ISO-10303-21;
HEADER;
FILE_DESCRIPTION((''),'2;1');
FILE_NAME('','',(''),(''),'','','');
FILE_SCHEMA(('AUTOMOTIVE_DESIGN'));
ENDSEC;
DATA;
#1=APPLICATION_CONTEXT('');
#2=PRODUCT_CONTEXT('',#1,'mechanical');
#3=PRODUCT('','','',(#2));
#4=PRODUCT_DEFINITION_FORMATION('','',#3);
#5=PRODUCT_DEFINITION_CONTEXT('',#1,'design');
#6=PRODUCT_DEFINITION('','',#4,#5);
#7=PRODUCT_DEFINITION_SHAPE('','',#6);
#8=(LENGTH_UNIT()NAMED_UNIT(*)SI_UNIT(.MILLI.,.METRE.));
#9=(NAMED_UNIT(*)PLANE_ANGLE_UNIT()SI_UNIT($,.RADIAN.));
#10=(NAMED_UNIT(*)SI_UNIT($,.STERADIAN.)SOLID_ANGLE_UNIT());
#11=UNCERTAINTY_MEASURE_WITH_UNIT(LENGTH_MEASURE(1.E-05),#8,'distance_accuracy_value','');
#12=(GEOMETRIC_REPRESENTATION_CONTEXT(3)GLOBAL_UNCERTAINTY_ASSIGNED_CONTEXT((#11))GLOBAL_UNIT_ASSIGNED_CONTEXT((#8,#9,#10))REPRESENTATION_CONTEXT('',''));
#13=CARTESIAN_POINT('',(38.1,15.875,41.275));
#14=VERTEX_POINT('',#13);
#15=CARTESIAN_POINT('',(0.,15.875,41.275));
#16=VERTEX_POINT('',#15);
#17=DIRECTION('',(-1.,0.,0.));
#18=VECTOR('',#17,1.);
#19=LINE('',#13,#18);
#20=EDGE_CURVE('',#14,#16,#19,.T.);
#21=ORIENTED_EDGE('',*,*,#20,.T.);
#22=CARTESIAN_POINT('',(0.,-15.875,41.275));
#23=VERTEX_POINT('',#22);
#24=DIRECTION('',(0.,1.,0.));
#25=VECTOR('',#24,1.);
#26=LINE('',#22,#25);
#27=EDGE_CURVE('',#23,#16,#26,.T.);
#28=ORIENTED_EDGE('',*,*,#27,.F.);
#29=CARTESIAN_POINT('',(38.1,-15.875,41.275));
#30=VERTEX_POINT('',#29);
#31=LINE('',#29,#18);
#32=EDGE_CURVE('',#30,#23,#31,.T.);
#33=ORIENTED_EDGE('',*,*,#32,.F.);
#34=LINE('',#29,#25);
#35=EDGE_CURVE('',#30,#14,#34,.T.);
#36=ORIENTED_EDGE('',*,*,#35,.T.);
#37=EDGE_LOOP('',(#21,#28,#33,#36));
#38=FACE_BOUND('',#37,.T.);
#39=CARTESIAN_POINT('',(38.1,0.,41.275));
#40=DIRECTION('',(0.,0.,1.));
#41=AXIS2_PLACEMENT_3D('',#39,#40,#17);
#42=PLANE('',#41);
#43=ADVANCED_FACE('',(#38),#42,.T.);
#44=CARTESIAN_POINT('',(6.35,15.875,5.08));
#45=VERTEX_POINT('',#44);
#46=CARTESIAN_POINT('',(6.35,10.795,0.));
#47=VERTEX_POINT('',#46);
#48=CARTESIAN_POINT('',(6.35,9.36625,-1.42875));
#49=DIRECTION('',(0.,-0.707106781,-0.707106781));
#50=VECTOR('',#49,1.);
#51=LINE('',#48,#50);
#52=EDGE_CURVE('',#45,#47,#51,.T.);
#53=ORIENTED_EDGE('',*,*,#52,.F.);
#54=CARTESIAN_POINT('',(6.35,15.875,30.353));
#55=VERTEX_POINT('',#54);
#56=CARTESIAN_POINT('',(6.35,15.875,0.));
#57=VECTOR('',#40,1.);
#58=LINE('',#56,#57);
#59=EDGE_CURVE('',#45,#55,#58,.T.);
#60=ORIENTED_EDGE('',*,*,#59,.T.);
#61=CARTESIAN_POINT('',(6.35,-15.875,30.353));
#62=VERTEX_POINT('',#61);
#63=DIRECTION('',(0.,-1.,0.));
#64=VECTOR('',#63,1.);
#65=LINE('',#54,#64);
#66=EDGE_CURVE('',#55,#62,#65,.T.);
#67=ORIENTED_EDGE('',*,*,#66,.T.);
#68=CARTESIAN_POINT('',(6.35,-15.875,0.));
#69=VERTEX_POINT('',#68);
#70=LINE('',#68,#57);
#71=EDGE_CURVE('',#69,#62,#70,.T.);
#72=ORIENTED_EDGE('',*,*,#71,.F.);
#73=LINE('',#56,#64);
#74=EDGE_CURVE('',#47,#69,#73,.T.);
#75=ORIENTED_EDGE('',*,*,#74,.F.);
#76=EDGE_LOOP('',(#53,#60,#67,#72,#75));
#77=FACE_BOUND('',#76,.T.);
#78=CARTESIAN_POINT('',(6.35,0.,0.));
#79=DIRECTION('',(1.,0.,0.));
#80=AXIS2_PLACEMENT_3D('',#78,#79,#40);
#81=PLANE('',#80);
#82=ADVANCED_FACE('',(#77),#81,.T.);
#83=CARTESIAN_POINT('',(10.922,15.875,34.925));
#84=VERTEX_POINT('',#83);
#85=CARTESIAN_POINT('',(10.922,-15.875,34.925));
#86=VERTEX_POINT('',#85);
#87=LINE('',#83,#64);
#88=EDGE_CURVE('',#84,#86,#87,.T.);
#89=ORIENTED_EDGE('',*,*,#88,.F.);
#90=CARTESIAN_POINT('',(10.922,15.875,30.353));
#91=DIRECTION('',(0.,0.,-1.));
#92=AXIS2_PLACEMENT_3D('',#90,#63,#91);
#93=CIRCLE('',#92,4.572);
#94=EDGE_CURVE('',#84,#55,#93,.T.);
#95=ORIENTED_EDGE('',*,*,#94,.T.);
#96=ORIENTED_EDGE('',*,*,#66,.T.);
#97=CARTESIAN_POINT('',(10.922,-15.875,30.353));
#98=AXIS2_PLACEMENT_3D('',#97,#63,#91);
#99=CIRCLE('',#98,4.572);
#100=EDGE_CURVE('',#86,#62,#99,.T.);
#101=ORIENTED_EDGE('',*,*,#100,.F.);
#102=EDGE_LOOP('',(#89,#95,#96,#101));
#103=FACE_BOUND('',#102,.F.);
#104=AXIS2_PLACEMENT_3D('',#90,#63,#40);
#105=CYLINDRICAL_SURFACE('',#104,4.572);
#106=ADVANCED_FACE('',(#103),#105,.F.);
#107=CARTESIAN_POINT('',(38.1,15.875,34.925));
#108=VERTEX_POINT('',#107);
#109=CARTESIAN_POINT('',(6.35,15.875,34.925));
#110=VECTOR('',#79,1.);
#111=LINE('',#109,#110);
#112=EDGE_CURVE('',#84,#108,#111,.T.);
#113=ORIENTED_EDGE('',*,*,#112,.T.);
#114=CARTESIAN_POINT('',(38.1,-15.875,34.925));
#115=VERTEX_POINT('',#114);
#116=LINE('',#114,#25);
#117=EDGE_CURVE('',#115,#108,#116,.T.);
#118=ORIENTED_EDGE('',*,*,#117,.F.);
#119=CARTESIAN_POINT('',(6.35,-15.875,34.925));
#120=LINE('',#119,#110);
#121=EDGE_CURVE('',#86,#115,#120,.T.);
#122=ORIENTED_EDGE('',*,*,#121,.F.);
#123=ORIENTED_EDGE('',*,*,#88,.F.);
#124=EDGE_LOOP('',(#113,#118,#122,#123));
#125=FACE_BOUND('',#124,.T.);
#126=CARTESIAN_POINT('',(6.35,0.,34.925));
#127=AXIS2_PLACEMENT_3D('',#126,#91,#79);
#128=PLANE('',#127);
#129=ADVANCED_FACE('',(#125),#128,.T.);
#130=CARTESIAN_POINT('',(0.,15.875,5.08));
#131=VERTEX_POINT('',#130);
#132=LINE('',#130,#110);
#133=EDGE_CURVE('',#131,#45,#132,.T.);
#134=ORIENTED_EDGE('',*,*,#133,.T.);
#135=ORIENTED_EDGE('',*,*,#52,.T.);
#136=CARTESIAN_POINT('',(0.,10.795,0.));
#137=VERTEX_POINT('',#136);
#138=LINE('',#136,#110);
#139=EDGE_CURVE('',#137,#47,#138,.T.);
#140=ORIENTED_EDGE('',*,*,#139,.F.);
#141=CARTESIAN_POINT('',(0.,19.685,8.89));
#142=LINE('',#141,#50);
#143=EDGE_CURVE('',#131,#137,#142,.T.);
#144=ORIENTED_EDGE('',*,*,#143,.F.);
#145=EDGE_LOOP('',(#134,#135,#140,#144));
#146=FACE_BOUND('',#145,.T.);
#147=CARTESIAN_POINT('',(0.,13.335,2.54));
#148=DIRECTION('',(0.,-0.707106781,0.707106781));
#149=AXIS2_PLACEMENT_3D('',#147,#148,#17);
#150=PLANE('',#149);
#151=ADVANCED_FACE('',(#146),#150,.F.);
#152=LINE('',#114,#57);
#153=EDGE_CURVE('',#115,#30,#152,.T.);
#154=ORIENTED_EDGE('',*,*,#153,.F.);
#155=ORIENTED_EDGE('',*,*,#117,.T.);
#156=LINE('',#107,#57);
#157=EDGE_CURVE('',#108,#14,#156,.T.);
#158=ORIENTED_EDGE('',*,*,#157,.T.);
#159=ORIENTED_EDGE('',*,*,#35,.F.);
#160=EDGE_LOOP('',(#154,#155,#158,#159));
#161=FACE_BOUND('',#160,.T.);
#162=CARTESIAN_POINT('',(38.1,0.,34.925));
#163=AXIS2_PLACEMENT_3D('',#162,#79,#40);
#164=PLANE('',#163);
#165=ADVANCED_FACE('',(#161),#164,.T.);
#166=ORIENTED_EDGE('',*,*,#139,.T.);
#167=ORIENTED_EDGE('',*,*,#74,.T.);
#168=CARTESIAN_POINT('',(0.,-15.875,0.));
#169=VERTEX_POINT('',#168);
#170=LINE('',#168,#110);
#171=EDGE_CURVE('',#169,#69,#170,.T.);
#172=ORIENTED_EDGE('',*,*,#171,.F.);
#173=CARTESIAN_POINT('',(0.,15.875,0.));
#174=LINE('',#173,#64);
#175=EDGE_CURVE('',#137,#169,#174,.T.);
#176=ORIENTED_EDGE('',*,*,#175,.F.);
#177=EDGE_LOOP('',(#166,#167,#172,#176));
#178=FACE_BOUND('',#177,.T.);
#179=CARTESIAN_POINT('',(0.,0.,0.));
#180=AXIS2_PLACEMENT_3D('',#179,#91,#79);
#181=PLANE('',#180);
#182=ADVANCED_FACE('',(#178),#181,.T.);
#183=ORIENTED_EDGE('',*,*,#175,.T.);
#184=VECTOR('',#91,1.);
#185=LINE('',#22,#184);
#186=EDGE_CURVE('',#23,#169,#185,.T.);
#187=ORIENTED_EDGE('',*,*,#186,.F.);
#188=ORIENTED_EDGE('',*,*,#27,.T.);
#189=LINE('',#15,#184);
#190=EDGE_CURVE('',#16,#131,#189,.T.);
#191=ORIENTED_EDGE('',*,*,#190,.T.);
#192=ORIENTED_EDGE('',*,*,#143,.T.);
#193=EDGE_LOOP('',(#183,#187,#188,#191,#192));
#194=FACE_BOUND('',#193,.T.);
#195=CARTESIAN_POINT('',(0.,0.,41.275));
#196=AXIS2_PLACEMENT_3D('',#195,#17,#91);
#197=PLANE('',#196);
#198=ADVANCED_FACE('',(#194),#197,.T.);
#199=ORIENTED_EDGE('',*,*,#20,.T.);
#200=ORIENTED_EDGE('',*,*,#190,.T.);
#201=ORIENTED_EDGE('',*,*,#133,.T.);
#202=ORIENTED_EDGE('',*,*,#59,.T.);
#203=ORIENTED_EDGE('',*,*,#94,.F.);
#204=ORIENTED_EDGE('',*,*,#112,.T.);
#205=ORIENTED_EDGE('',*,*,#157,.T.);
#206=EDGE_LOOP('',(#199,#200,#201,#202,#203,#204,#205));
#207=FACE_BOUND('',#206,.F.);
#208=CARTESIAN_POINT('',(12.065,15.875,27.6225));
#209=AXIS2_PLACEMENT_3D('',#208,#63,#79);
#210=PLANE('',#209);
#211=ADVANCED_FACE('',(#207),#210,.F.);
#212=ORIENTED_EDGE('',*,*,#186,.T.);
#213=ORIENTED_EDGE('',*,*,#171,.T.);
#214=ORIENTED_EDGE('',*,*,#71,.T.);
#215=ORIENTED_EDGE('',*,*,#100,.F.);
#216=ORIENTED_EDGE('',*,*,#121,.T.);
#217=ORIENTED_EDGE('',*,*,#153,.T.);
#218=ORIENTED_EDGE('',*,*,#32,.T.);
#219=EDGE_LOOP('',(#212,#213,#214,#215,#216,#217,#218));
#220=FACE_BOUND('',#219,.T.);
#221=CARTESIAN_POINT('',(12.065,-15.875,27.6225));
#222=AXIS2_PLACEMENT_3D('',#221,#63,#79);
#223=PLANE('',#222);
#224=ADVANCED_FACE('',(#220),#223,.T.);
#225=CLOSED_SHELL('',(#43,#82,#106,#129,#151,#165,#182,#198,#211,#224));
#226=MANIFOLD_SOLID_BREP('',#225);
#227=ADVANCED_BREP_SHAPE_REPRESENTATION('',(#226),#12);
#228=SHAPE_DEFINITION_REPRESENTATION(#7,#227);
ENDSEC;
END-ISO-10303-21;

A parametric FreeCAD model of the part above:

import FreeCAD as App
import Part
import Sketcher

V = App.Vector
Q = App.Units.Quantity


def edges_at(feature, points):
    """Names of the edges that pass closest to the given points."""
    edges = feature.Shape.Edges
    near = lambda p: min(range(len(edges)), key=lambda i: edges[i].distToShape(Part.Vertex(*p))[0])
    return sorted({f"Edge{near(p) + 1}" for p in points})

doc = App.newDocument("Part")
body = doc.addObject("PartDesign::Body", "Body")

sketch1 = body.newObject("Sketcher::SketchObject", "Sketch")
sketch1.AttachmentSupport = (doc.getObject("XZ_Plane"), [""])
sketch1.MapMode = "FlatFace"
sketch1.addGeometry(Part.LineSegment(V(0, 41.275, 0), V(0, 0, 0)), False)
sketch1.addGeometry(Part.LineSegment(V(0, 0, 0), V(6.35, 0, 0)), False)
sketch1.addGeometry(Part.LineSegment(V(6.35, 0, 0), V(6.35, 34.925, 0)), False)
sketch1.addGeometry(Part.LineSegment(V(6.35, 34.925, 0), V(38.1, 34.925, 0)), False)
sketch1.addGeometry(Part.LineSegment(V(38.1, 34.925, 0), V(38.1, 41.275, 0)), False)
sketch1.addGeometry(Part.LineSegment(V(38.1, 41.275, 0), V(0, 41.275, 0)), False)
sketch1.addConstraint(Sketcher.Constraint("Coincident", 0, 2, 1, 1))
sketch1.addConstraint(Sketcher.Constraint("Coincident", 1, 2, 2, 1))
sketch1.addConstraint(Sketcher.Constraint("Coincident", 2, 2, 3, 1))
sketch1.addConstraint(Sketcher.Constraint("Coincident", 3, 2, 4, 1))
sketch1.addConstraint(Sketcher.Constraint("Coincident", 4, 2, 5, 1))
sketch1.addConstraint(Sketcher.Constraint("Coincident", 5, 2, 0, 1))
sketch1.addConstraint(Sketcher.Constraint("Vertical", 0))
sketch1.addConstraint(Sketcher.Constraint("Horizontal", 1))
sketch1.addConstraint(Sketcher.Constraint("Vertical", 2))
sketch1.addConstraint(Sketcher.Constraint("Horizontal", 3))
sketch1.addConstraint(Sketcher.Constraint("Vertical", 4))
sketch1.addConstraint(Sketcher.Constraint("Horizontal", 5))
sketch1.addConstraint(Sketcher.Constraint("Coincident", 0, 2, -1, 1))
sketch1.addConstraint(Sketcher.Constraint("Equal", 1, 4))
sketch1.addConstraint(Sketcher.Constraint("DistanceX", 5, 2, 5, 1, Q("1.5 in")))
sketch1.addConstraint(Sketcher.Constraint("DistanceX", 1, 1, 1, 2, Q("0.25 in")))
sketch1.addConstraint(Sketcher.Constraint("DistanceY", 0, 2, 0, 1, Q("1.625 in")))
pad1 = body.newObject("PartDesign::Pad", "Pad")
pad1.Profile = sketch1
pad1.Length = Q("1.25 in")
pad1.Midplane = True
doc.recompute()

fillet = body.newObject("PartDesign::Fillet", "Fillet")
fillet.Base = (pad1, edges_at(pad1, [(6.35, 0, 34.925)]))
fillet.Radius = Q("0.18 in")
doc.recompute()

chamfer = body.newObject("PartDesign::Chamfer", "Chamfer")
chamfer.Base = (fillet, edges_at(fillet, [(3.175, 15.875, 0)]))
chamfer.Size = Q("0.2 in")

doc.recompute()
